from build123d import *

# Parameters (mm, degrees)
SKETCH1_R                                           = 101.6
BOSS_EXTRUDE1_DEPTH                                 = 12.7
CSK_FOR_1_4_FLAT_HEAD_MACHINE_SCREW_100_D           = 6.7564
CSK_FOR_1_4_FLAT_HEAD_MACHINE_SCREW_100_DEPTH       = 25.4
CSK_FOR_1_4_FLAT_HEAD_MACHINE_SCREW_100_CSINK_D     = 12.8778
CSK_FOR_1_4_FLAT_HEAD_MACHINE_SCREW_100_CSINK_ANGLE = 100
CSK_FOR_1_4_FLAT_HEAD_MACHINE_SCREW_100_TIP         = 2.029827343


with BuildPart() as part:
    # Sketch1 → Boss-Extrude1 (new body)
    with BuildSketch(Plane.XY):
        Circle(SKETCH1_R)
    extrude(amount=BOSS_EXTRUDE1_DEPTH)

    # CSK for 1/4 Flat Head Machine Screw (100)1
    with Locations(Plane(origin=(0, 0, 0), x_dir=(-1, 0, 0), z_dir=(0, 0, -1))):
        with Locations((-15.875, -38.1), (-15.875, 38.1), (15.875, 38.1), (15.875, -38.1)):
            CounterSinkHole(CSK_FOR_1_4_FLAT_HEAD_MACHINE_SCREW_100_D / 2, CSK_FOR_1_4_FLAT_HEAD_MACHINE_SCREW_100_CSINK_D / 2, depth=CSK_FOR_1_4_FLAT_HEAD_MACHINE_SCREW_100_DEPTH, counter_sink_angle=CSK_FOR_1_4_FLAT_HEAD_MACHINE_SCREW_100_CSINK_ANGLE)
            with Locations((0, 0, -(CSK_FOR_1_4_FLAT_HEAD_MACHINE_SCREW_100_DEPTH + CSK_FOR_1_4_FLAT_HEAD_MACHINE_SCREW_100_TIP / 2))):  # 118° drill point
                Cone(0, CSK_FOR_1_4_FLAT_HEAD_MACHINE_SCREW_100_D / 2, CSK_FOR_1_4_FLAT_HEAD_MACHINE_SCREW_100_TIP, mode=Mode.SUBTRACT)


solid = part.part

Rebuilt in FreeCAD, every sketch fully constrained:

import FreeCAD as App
import Part
import Sketcher

V = App.Vector
Q = App.Units.Quantity

doc = App.newDocument("Part")
body = doc.addObject("PartDesign::Body", "Body")

# Sketch on XY plane
sketch1 = body.newObject("Sketcher::SketchObject", "Sketch")
sketch1.AttachmentSupport = (doc.getObject("XY_Plane"), [""])
sketch1.MapMode = "FlatFace"
sketch1.addGeometry(Part.Circle(V(0, 0, 0), V(0, 0, 1), 102), False)
sketch1.addConstraint([
    Sketcher.Constraint("Coincident", 0, 3, -1, 1),
    Sketcher.Constraint("Diameter", 0, Q("8 in")),
])
pad1 = body.newObject("PartDesign::Pad", "Pad")
pad1.Profile = sketch1
pad1.Length = Q("0.5 in")

# Sketch on XY plane
sketch2 = body.newObject("Sketcher::SketchObject", "Sketch001")
sketch2.AttachmentSupport = (doc.getObject("XY_Plane"), [""])
sketch2.MapMode = "FlatFace"
sketch2.addGeometry([
    Part.Circle(V(15.9, -38.1, 0), V(0, 0, 1), 3.4),
    Part.Circle(V(15.9, 38.1, 0), V(0, 0, 1), 3.4),
    Part.Circle(V(-15.9, 38.1, 0), V(0, 0, 1), 3.4),
    Part.Circle(V(-15.9, -38.1, 0), V(0, 0, 1), 3.4),
], False)
sketch2.addConstraint([
    Sketcher.Constraint("Equal", 0, 1),
    Sketcher.Constraint("Equal", 1, 2),
    Sketcher.Constraint("Equal", 2, 3),
    Sketcher.Constraint("Symmetric", 0, 3, 2, 3, -1, 1),
    Sketcher.Constraint("Symmetric", 1, 3, 3, 3, -1, 1),
    Sketcher.Constraint("Symmetric", 1, 3, 2, 3, -2),
    Sketcher.Constraint("Diameter", 0, Q("0.266 in")),
    Sketcher.Constraint("DistanceY", 0, 3, 1, 3, Q("3 in")),
    Sketcher.Constraint("DistanceX", 2, 3, 1, 3, Q("1.25 in")),
])
doc.recompute()
hole = body.newObject("PartDesign::Hole", "Hole")
hole.Profile = sketch2
hole.ThreadType = "None"
hole.Diameter = Q("0.266 in")
hole.DepthType = "Dimension"
hole.Depth = Q("1 in")
hole.DrillPoint = "Angled"
hole.DrillPointAngle = 118
hole.HoleCutType = "Countersink"
hole.HoleCutDiameter = Q("0.507 in")
hole.HoleCutCountersinkAngle = 100
hole.Reversed = True

doc.recompute()
